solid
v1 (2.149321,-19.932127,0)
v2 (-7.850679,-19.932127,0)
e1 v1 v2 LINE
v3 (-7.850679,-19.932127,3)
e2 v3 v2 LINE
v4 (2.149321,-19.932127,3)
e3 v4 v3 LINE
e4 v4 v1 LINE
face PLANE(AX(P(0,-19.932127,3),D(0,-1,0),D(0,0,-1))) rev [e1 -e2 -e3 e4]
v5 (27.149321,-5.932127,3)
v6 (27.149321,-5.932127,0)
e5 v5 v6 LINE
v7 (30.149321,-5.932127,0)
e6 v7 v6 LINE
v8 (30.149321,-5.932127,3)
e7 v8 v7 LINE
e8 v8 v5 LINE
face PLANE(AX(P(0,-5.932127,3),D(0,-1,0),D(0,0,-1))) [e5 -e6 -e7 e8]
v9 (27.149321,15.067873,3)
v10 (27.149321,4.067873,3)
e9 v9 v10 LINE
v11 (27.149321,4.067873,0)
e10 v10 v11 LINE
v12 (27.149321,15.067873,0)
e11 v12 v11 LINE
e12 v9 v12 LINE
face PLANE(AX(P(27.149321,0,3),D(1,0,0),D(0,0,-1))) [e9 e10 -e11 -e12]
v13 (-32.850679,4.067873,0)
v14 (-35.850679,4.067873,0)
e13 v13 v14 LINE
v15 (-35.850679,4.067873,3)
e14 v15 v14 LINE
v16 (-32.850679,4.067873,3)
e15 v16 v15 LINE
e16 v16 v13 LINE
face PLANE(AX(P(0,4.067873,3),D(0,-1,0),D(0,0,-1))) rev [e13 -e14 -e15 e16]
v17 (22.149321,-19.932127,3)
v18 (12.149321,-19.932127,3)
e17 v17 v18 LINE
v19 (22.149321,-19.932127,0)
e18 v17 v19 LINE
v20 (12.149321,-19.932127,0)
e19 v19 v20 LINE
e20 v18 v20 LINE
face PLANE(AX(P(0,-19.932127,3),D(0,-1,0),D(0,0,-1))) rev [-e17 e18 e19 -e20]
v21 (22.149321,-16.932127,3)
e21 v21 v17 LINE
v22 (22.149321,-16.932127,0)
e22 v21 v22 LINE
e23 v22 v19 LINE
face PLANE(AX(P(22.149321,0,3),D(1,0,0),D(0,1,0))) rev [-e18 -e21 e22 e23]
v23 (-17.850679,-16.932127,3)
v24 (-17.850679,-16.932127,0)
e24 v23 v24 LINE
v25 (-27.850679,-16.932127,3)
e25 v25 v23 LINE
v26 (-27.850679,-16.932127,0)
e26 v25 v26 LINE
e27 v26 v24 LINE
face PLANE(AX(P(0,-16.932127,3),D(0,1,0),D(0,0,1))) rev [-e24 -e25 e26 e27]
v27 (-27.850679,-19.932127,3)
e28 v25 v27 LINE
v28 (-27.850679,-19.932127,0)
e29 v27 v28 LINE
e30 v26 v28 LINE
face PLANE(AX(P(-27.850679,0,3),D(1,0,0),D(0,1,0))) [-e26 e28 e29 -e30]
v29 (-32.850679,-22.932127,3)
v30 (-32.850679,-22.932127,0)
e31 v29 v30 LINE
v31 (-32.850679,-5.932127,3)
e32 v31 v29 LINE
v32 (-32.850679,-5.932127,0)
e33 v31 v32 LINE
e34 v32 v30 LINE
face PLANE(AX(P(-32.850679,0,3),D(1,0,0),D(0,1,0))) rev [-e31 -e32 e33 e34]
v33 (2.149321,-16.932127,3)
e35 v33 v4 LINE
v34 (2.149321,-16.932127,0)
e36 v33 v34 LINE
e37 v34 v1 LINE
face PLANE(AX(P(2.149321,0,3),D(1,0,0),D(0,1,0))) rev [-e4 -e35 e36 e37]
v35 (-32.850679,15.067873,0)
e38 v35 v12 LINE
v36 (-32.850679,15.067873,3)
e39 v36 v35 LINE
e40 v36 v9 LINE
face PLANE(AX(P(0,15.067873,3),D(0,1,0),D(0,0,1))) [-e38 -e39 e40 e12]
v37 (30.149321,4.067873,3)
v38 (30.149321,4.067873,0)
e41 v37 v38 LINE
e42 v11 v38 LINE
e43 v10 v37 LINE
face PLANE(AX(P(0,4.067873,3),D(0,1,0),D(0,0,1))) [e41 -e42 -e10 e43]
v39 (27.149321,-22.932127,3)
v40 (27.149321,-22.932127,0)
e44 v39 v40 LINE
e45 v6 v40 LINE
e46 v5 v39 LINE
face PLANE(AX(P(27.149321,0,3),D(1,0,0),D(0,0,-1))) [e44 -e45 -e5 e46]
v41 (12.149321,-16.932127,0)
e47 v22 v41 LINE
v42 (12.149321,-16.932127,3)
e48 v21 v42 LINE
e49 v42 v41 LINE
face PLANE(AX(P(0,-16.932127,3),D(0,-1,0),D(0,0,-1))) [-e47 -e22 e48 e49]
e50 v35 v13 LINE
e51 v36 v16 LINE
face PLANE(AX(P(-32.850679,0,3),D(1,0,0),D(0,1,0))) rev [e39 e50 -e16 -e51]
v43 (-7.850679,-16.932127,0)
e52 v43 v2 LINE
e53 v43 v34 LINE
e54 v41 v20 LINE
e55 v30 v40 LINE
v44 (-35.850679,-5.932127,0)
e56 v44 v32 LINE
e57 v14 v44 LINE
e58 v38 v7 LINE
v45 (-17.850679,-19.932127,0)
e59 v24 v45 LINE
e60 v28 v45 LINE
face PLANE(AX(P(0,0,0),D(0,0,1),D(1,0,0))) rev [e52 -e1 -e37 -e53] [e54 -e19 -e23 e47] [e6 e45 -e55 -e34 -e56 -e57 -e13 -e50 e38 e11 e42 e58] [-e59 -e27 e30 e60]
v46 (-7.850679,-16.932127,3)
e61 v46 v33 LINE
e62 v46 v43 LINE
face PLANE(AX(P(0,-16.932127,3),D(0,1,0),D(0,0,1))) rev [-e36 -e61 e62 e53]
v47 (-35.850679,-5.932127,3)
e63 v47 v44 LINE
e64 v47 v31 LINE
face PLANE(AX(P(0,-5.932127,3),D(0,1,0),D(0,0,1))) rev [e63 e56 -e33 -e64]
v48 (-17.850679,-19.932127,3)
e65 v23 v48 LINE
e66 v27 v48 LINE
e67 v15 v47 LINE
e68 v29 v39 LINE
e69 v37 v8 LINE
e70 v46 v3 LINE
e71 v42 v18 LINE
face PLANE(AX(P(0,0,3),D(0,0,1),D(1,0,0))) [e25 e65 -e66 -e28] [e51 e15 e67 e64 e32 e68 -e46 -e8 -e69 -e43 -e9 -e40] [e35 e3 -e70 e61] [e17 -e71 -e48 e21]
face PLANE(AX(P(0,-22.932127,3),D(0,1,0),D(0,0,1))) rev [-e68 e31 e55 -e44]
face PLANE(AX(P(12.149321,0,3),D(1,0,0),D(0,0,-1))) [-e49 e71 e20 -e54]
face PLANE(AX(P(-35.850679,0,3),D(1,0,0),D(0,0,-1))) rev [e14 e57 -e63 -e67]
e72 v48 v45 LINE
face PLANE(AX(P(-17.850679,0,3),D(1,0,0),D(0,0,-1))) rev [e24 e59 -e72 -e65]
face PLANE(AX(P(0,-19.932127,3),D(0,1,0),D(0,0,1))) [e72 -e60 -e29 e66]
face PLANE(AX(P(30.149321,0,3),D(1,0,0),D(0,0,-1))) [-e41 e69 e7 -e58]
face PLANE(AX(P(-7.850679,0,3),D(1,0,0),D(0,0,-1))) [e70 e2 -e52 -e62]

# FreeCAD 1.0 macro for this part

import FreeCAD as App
import Part
import Sketcher


def add_polygon(sketch, points):
    """Adds a closed chain of lines whose ends are joined by coincident constraints."""
    first, n = sketch.GeometryCount, len(points)
    for a, b in zip(points, points[1:] + points[:1]):
        sketch.addGeometry(Part.LineSegment(App.Vector(*a, 0), App.Vector(*b, 0)), False)
    for i in range(n):
        sketch.addConstraint(Sketcher.Constraint("Coincident", first + i, 2, first + (i + 1) % n, 1))

doc = App.newDocument("Part")
body = doc.addObject("PartDesign::Body", "Body")

# Sketch on XY plane
sketch1 = body.newObject("Sketcher::SketchObject", "Sketch")
sketch1.AttachmentSupport = (doc.getObject("XY_Plane"), [""])
sketch1.MapMode = "FlatFace"
add_polygon(sketch1, [(-32.850679, 15.067873), (-32.850679, 4.067873), (-35.850679, 4.067873), (-35.850679, -5.932127), (-32.850679, -5.932127), (-32.850679, -22.932127), (27.149321, -22.932127), (27.149321, -5.932127), (30.149321, -5.932127), (30.149321, 4.067873), (27.149321, 4.067873), (27.149321, 15.067873)])  # lines 0-11
add_polygon(sketch1, [(-7.850679, -16.932127), (2.149321, -16.932127), (2.149321, -19.932127), (-7.850679, -19.932127)])  # lines 12-15
add_polygon(sketch1, [(-17.850679, -19.932127), (-27.850679, -19.932127), (-27.850679, -16.932127), (-17.850679, -16.932127)])  # lines 16-19
add_polygon(sketch1, [(12.149321, -19.932127), (12.149321, -16.932127), (22.149321, -16.932127), (22.149321, -19.932127)])  # lines 20-23
sketch1.addConstraint(Sketcher.Constraint("Vertical", 0))
sketch1.addConstraint(Sketcher.Constraint("Horizontal", 1))
sketch1.addConstraint(Sketcher.Constraint("Vertical", 2))
sketch1.addConstraint(Sketcher.Constraint("Horizontal", 3))
sketch1.addConstraint(Sketcher.Constraint("Vertical", 4))
sketch1.addConstraint(Sketcher.Constraint("Horizontal", 5))
sketch1.addConstraint(Sketcher.Constraint("Vertical", 6))
sketch1.addConstraint(Sketcher.Constraint("Horizontal", 7))
sketch1.addConstraint(Sketcher.Constraint("Vertical", 8))
sketch1.addConstraint(Sketcher.Constraint("Horizontal", 9))
sketch1.addConstraint(Sketcher.Constraint("Vertical", 10))
sketch1.addConstraint(Sketcher.Constraint("Horizontal", 11))
sketch1.addConstraint(Sketcher.Constraint("Horizontal", 12))
sketch1.addConstraint(Sketcher.Constraint("Vertical", 13))
sketch1.addConstraint(Sketcher.Constraint("Horizontal", 14))
sketch1.addConstraint(Sketcher.Constraint("Vertical", 15))
sketch1.addConstraint(Sketcher.Constraint("Horizontal", 16))
sketch1.addConstraint(Sketcher.Constraint("Vertical", 17))
sketch1.addConstraint(Sketcher.Constraint("Horizontal", 18))
sketch1.addConstraint(Sketcher.Constraint("Vertical", 19))
sketch1.addConstraint(Sketcher.Constraint("Vertical", 20))
sketch1.addConstraint(Sketcher.Constraint("Horizontal", 21))
sketch1.addConstraint(Sketcher.Constraint("Vertical", 22))
sketch1.addConstraint(Sketcher.Constraint("Horizontal", 23))
sketch1.addConstraint(Sketcher.Constraint("Horizontal", 3, 2, 6, 2))
sketch1.addConstraint(Sketcher.Constraint("Horizontal", 1, 2, 8, 2))
sketch1.addConstraint(Sketcher.Constraint("Horizontal", 14, 2, 16, 2))
sketch1.addConstraint(Sketcher.Constraint("Horizontal", 15, 2, 17, 2))
sketch1.addConstraint(Sketcher.Constraint("Horizontal", 18, 2, 20, 2))
sketch1.addConstraint(Sketcher.Constraint("Horizontal", 19, 2, 22, 2))
sketch1.addConstraint(Sketcher.Constraint("Vertical", 0, 2, 3, 2))
sketch1.addConstraint(Sketcher.Constraint("Vertical", 6, 2, 9, 2))
sketch1.addConstraint(Sketcher.Constraint("Equal", 3, 7))
sketch1.addConstraint(Sketcher.Constraint("Equal", 14, 16))
sketch1.addConstraint(Sketcher.Constraint("Equal", 18, 21))
sketch1.addConstraint(Sketcher.Constraint("Equal", 23, 2))
sketch1.addConstraint(Sketcher.Constraint("Equal", 9, 13))
sketch1.addConstraint(Sketcher.Constraint("DistanceX", 1, 2, 1, 1, 3.0))
sketch1.addConstraint(Sketcher.Constraint("DistanceX", 5, 1, 5, 2, 60.0))
sketch1.addConstraint(Sketcher.Constraint("DistanceX", 12, 1, 12, 2, 10.0))
sketch1.addConstraint(Sketcher.Constraint("DistanceY", 0, 2, 0, 1, 11.0))
sketch1.addConstraint(Sketcher.Constraint("DistanceY", 4, 2, 4, 1, 17.0))
sketch1.addConstraint(Sketcher.Constraint("DistanceX", 12, 2, 5, 2, 25.0))
sketch1.addConstraint(Sketcher.Constraint("DistanceY", 5, 2, 12, 2, 6.0))
sketch1.addConstraint(Sketcher.Constraint("DistanceX", 4, 2, 16, 2, 5.0))
sketch1.addConstraint(Sketcher.Constraint("DistanceX", 12, 2, 20, 2, 10.0))
sketch1.addConstraint(Sketcher.Constraint("DistanceX", 0, 2, -1, 1, 32.850679))
sketch1.addConstraint(Sketcher.Constraint("DistanceY", -1, 1, 0, 2, 4.067873))
pad1 = body.newObject("PartDesign::Pad", "Pad")
pad1.Profile = sketch1
pad1.Length = 3

doc.recompute()
